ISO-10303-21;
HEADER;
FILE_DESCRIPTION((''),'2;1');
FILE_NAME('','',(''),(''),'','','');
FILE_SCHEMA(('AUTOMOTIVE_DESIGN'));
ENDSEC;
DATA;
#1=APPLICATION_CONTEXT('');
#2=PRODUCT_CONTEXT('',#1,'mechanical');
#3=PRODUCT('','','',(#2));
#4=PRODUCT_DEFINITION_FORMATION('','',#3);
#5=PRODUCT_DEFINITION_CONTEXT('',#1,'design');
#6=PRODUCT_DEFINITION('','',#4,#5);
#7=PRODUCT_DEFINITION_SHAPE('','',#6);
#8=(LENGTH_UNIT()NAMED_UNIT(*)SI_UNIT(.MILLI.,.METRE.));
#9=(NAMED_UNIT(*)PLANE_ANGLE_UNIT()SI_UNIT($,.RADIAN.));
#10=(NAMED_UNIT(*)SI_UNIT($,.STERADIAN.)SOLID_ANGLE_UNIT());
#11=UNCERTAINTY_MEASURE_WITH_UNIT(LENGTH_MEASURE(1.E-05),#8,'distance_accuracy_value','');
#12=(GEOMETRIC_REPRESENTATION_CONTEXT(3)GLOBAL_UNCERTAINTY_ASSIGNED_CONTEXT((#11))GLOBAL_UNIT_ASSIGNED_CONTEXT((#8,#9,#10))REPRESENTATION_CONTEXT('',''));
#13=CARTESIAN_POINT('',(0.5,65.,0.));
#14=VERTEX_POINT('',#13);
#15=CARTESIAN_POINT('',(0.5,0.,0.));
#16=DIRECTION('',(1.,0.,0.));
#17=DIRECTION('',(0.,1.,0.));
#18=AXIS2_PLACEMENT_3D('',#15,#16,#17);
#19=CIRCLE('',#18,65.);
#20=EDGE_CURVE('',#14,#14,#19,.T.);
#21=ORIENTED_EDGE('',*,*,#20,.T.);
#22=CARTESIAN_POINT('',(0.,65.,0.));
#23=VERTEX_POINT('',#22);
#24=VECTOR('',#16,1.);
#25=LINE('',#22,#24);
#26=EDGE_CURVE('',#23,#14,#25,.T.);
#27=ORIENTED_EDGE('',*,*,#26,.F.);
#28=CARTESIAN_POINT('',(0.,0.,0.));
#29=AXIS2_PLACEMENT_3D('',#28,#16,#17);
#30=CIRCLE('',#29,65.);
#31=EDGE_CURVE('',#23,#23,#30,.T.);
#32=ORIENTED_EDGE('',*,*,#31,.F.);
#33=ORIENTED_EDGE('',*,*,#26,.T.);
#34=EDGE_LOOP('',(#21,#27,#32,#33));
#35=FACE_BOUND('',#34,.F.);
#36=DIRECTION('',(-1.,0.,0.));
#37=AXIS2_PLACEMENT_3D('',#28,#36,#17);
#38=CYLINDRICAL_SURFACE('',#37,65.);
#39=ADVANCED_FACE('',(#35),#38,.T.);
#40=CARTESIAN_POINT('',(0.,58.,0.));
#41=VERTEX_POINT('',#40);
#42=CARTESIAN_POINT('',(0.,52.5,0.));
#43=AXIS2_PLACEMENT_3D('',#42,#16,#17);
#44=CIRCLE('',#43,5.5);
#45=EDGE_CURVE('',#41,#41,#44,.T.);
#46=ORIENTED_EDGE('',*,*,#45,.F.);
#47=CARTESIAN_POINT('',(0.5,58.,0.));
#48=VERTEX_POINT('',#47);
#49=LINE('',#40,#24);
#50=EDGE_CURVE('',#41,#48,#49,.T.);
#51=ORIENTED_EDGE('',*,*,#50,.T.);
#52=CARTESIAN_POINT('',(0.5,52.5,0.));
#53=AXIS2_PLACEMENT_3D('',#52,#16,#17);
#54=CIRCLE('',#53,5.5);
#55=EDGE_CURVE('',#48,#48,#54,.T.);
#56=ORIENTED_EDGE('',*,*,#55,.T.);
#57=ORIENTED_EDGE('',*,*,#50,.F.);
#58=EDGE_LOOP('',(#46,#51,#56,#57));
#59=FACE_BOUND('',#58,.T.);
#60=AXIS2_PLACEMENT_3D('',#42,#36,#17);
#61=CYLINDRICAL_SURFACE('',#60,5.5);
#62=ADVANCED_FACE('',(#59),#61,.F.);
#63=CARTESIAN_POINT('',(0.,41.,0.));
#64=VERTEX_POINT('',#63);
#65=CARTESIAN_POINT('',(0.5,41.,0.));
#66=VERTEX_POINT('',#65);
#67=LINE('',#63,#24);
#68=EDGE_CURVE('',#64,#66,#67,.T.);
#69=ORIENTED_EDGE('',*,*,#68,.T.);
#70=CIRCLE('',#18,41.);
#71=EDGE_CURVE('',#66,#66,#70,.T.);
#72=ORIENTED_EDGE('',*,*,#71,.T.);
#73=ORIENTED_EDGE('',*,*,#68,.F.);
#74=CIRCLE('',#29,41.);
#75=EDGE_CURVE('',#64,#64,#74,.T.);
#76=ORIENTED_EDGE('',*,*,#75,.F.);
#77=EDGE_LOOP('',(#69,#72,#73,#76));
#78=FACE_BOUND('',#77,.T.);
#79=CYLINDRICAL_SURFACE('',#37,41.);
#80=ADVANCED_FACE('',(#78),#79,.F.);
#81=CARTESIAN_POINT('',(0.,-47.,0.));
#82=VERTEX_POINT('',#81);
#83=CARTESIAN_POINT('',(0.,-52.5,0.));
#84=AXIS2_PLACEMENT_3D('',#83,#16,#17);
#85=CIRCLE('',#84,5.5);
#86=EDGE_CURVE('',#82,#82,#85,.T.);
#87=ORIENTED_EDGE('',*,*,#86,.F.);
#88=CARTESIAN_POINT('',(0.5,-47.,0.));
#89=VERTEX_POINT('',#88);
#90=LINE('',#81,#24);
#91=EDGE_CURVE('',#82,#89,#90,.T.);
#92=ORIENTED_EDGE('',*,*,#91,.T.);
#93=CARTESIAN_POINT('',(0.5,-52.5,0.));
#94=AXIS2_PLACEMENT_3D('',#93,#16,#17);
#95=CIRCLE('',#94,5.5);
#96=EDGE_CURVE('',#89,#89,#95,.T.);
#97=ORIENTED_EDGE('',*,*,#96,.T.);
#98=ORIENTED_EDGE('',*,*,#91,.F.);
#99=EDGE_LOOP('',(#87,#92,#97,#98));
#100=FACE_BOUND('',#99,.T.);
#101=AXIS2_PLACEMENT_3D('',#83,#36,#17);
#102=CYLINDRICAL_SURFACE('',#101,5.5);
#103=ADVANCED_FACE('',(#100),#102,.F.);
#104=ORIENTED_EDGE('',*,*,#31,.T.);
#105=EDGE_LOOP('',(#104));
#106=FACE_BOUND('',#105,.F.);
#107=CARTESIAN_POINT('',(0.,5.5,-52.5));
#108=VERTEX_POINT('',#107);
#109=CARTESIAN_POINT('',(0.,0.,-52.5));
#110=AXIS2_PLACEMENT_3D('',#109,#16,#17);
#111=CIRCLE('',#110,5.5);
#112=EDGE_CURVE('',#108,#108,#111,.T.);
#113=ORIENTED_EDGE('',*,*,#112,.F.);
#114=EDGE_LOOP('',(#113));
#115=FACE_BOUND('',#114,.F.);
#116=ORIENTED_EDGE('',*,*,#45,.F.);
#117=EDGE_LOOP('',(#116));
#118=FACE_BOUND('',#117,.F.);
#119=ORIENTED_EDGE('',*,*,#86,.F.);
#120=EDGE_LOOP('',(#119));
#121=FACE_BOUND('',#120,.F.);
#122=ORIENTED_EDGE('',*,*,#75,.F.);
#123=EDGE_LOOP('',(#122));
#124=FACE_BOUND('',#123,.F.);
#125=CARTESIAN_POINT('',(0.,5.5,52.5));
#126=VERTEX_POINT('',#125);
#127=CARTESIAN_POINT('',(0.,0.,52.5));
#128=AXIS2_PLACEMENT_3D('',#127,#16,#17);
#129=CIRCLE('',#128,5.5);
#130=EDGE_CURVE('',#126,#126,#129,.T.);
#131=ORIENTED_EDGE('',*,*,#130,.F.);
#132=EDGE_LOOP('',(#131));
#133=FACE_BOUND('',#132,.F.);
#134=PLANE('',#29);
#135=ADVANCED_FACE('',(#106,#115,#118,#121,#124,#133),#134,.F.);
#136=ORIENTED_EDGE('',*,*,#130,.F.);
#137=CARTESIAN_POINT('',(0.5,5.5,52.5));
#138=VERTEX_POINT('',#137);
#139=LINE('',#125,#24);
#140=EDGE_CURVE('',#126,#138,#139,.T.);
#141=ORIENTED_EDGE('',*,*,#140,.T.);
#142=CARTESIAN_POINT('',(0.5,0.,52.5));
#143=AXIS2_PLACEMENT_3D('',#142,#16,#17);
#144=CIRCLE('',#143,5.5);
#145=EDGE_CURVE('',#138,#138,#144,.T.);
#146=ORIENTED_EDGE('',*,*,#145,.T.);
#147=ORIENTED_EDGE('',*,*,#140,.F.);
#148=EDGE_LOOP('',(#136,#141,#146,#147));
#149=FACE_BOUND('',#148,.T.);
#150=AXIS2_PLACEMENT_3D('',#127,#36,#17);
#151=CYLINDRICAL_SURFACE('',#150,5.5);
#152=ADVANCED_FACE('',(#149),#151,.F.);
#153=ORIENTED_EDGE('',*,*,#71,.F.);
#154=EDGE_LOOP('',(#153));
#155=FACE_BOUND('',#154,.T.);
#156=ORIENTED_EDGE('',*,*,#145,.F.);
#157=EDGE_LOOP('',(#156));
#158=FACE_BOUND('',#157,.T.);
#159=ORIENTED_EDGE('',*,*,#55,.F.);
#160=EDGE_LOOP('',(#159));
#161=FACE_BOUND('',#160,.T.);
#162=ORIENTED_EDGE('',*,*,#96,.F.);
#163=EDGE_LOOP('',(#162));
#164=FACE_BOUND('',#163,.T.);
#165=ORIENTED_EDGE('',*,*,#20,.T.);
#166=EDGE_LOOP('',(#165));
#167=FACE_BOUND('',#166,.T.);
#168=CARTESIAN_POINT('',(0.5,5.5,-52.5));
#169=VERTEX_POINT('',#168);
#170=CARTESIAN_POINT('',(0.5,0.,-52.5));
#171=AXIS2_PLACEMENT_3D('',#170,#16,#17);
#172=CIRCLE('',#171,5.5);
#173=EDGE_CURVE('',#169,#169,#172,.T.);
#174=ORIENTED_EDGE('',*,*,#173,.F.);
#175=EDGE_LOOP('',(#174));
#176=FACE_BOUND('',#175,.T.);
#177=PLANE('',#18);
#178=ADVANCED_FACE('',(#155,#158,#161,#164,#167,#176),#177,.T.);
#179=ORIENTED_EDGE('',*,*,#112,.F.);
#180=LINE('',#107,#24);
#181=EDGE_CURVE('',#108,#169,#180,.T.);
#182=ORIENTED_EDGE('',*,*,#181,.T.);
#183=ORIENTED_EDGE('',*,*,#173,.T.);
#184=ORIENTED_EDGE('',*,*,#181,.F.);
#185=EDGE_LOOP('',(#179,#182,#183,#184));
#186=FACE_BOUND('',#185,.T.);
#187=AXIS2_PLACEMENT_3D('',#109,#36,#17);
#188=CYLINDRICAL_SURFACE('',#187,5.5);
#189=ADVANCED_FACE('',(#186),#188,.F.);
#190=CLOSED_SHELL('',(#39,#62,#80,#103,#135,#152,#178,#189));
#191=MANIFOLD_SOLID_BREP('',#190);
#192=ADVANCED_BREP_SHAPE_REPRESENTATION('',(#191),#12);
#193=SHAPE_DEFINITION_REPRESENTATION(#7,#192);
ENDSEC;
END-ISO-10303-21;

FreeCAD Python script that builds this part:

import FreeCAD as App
import Part
import Sketcher
Q = App.Units.Quantity

doc = App.newDocument("Part")
body = doc.addObject("PartDesign::Body", "Body")

sketch1 = body.newObject("Sketcher::SketchObject", "Sketch")
sketch1.AttachmentSupport = (doc.getObject("YZ_Plane"), [""])
sketch1.MapMode = "FlatFace"
sketch1.addGeometry([
    Part.Circle(App.Vector(0, 0, 0), App.Vector(0, 0, 1), 65),
    Part.Circle(App.Vector(0, -52, 0), App.Vector(0, 0, 1), 6),
    Part.Circle(App.Vector(-52, 0, 0), App.Vector(0, 0, 1), 6),
    Part.Circle(App.Vector(0, 0, 0), App.Vector(0, 0, 1), 41),
    Part.Circle(App.Vector(52, 0, 0), App.Vector(0, 0, 1), 6),
    Part.Circle(App.Vector(0, 52, 0), App.Vector(0, 0, 1), 6),
], False)
sketch1.addConstraint([
    Sketcher.Constraint("Coincident", 0, 3, -1, 1),
    Sketcher.Constraint("Coincident", 3, 3, -1, 1),
    Sketcher.Constraint("Equal", 1, 2),
    Sketcher.Constraint("Equal", 2, 4),
    Sketcher.Constraint("Equal", 4, 5),
    Sketcher.Constraint("Symmetric", 2, 3, 4, 3, -1, 1),
    Sketcher.Constraint("Symmetric", 1, 3, 5, 3, -1, 1),
    Sketcher.Constraint("PointOnObject", 1, 3, -2),
    Sketcher.Constraint("PointOnObject", 2, 3, -1),
    Sketcher.Constraint("Diameter", 0, Q("130 mm")),
    Sketcher.Constraint("Diameter", 1, Q("11 mm")),
    Sketcher.Constraint("Diameter", 3, Q("82 mm")),
    Sketcher.Constraint("DistanceY", 1, 3, -1, 1, Q("52.5 mm")),
    Sketcher.Constraint("DistanceX", 2, 3, -1, 1, Q("52.5 mm")),
])
pad1 = body.newObject("PartDesign::Pad", "Pad")
pad1.Profile = sketch1
pad1.Length = 0.5

doc.recompute()
